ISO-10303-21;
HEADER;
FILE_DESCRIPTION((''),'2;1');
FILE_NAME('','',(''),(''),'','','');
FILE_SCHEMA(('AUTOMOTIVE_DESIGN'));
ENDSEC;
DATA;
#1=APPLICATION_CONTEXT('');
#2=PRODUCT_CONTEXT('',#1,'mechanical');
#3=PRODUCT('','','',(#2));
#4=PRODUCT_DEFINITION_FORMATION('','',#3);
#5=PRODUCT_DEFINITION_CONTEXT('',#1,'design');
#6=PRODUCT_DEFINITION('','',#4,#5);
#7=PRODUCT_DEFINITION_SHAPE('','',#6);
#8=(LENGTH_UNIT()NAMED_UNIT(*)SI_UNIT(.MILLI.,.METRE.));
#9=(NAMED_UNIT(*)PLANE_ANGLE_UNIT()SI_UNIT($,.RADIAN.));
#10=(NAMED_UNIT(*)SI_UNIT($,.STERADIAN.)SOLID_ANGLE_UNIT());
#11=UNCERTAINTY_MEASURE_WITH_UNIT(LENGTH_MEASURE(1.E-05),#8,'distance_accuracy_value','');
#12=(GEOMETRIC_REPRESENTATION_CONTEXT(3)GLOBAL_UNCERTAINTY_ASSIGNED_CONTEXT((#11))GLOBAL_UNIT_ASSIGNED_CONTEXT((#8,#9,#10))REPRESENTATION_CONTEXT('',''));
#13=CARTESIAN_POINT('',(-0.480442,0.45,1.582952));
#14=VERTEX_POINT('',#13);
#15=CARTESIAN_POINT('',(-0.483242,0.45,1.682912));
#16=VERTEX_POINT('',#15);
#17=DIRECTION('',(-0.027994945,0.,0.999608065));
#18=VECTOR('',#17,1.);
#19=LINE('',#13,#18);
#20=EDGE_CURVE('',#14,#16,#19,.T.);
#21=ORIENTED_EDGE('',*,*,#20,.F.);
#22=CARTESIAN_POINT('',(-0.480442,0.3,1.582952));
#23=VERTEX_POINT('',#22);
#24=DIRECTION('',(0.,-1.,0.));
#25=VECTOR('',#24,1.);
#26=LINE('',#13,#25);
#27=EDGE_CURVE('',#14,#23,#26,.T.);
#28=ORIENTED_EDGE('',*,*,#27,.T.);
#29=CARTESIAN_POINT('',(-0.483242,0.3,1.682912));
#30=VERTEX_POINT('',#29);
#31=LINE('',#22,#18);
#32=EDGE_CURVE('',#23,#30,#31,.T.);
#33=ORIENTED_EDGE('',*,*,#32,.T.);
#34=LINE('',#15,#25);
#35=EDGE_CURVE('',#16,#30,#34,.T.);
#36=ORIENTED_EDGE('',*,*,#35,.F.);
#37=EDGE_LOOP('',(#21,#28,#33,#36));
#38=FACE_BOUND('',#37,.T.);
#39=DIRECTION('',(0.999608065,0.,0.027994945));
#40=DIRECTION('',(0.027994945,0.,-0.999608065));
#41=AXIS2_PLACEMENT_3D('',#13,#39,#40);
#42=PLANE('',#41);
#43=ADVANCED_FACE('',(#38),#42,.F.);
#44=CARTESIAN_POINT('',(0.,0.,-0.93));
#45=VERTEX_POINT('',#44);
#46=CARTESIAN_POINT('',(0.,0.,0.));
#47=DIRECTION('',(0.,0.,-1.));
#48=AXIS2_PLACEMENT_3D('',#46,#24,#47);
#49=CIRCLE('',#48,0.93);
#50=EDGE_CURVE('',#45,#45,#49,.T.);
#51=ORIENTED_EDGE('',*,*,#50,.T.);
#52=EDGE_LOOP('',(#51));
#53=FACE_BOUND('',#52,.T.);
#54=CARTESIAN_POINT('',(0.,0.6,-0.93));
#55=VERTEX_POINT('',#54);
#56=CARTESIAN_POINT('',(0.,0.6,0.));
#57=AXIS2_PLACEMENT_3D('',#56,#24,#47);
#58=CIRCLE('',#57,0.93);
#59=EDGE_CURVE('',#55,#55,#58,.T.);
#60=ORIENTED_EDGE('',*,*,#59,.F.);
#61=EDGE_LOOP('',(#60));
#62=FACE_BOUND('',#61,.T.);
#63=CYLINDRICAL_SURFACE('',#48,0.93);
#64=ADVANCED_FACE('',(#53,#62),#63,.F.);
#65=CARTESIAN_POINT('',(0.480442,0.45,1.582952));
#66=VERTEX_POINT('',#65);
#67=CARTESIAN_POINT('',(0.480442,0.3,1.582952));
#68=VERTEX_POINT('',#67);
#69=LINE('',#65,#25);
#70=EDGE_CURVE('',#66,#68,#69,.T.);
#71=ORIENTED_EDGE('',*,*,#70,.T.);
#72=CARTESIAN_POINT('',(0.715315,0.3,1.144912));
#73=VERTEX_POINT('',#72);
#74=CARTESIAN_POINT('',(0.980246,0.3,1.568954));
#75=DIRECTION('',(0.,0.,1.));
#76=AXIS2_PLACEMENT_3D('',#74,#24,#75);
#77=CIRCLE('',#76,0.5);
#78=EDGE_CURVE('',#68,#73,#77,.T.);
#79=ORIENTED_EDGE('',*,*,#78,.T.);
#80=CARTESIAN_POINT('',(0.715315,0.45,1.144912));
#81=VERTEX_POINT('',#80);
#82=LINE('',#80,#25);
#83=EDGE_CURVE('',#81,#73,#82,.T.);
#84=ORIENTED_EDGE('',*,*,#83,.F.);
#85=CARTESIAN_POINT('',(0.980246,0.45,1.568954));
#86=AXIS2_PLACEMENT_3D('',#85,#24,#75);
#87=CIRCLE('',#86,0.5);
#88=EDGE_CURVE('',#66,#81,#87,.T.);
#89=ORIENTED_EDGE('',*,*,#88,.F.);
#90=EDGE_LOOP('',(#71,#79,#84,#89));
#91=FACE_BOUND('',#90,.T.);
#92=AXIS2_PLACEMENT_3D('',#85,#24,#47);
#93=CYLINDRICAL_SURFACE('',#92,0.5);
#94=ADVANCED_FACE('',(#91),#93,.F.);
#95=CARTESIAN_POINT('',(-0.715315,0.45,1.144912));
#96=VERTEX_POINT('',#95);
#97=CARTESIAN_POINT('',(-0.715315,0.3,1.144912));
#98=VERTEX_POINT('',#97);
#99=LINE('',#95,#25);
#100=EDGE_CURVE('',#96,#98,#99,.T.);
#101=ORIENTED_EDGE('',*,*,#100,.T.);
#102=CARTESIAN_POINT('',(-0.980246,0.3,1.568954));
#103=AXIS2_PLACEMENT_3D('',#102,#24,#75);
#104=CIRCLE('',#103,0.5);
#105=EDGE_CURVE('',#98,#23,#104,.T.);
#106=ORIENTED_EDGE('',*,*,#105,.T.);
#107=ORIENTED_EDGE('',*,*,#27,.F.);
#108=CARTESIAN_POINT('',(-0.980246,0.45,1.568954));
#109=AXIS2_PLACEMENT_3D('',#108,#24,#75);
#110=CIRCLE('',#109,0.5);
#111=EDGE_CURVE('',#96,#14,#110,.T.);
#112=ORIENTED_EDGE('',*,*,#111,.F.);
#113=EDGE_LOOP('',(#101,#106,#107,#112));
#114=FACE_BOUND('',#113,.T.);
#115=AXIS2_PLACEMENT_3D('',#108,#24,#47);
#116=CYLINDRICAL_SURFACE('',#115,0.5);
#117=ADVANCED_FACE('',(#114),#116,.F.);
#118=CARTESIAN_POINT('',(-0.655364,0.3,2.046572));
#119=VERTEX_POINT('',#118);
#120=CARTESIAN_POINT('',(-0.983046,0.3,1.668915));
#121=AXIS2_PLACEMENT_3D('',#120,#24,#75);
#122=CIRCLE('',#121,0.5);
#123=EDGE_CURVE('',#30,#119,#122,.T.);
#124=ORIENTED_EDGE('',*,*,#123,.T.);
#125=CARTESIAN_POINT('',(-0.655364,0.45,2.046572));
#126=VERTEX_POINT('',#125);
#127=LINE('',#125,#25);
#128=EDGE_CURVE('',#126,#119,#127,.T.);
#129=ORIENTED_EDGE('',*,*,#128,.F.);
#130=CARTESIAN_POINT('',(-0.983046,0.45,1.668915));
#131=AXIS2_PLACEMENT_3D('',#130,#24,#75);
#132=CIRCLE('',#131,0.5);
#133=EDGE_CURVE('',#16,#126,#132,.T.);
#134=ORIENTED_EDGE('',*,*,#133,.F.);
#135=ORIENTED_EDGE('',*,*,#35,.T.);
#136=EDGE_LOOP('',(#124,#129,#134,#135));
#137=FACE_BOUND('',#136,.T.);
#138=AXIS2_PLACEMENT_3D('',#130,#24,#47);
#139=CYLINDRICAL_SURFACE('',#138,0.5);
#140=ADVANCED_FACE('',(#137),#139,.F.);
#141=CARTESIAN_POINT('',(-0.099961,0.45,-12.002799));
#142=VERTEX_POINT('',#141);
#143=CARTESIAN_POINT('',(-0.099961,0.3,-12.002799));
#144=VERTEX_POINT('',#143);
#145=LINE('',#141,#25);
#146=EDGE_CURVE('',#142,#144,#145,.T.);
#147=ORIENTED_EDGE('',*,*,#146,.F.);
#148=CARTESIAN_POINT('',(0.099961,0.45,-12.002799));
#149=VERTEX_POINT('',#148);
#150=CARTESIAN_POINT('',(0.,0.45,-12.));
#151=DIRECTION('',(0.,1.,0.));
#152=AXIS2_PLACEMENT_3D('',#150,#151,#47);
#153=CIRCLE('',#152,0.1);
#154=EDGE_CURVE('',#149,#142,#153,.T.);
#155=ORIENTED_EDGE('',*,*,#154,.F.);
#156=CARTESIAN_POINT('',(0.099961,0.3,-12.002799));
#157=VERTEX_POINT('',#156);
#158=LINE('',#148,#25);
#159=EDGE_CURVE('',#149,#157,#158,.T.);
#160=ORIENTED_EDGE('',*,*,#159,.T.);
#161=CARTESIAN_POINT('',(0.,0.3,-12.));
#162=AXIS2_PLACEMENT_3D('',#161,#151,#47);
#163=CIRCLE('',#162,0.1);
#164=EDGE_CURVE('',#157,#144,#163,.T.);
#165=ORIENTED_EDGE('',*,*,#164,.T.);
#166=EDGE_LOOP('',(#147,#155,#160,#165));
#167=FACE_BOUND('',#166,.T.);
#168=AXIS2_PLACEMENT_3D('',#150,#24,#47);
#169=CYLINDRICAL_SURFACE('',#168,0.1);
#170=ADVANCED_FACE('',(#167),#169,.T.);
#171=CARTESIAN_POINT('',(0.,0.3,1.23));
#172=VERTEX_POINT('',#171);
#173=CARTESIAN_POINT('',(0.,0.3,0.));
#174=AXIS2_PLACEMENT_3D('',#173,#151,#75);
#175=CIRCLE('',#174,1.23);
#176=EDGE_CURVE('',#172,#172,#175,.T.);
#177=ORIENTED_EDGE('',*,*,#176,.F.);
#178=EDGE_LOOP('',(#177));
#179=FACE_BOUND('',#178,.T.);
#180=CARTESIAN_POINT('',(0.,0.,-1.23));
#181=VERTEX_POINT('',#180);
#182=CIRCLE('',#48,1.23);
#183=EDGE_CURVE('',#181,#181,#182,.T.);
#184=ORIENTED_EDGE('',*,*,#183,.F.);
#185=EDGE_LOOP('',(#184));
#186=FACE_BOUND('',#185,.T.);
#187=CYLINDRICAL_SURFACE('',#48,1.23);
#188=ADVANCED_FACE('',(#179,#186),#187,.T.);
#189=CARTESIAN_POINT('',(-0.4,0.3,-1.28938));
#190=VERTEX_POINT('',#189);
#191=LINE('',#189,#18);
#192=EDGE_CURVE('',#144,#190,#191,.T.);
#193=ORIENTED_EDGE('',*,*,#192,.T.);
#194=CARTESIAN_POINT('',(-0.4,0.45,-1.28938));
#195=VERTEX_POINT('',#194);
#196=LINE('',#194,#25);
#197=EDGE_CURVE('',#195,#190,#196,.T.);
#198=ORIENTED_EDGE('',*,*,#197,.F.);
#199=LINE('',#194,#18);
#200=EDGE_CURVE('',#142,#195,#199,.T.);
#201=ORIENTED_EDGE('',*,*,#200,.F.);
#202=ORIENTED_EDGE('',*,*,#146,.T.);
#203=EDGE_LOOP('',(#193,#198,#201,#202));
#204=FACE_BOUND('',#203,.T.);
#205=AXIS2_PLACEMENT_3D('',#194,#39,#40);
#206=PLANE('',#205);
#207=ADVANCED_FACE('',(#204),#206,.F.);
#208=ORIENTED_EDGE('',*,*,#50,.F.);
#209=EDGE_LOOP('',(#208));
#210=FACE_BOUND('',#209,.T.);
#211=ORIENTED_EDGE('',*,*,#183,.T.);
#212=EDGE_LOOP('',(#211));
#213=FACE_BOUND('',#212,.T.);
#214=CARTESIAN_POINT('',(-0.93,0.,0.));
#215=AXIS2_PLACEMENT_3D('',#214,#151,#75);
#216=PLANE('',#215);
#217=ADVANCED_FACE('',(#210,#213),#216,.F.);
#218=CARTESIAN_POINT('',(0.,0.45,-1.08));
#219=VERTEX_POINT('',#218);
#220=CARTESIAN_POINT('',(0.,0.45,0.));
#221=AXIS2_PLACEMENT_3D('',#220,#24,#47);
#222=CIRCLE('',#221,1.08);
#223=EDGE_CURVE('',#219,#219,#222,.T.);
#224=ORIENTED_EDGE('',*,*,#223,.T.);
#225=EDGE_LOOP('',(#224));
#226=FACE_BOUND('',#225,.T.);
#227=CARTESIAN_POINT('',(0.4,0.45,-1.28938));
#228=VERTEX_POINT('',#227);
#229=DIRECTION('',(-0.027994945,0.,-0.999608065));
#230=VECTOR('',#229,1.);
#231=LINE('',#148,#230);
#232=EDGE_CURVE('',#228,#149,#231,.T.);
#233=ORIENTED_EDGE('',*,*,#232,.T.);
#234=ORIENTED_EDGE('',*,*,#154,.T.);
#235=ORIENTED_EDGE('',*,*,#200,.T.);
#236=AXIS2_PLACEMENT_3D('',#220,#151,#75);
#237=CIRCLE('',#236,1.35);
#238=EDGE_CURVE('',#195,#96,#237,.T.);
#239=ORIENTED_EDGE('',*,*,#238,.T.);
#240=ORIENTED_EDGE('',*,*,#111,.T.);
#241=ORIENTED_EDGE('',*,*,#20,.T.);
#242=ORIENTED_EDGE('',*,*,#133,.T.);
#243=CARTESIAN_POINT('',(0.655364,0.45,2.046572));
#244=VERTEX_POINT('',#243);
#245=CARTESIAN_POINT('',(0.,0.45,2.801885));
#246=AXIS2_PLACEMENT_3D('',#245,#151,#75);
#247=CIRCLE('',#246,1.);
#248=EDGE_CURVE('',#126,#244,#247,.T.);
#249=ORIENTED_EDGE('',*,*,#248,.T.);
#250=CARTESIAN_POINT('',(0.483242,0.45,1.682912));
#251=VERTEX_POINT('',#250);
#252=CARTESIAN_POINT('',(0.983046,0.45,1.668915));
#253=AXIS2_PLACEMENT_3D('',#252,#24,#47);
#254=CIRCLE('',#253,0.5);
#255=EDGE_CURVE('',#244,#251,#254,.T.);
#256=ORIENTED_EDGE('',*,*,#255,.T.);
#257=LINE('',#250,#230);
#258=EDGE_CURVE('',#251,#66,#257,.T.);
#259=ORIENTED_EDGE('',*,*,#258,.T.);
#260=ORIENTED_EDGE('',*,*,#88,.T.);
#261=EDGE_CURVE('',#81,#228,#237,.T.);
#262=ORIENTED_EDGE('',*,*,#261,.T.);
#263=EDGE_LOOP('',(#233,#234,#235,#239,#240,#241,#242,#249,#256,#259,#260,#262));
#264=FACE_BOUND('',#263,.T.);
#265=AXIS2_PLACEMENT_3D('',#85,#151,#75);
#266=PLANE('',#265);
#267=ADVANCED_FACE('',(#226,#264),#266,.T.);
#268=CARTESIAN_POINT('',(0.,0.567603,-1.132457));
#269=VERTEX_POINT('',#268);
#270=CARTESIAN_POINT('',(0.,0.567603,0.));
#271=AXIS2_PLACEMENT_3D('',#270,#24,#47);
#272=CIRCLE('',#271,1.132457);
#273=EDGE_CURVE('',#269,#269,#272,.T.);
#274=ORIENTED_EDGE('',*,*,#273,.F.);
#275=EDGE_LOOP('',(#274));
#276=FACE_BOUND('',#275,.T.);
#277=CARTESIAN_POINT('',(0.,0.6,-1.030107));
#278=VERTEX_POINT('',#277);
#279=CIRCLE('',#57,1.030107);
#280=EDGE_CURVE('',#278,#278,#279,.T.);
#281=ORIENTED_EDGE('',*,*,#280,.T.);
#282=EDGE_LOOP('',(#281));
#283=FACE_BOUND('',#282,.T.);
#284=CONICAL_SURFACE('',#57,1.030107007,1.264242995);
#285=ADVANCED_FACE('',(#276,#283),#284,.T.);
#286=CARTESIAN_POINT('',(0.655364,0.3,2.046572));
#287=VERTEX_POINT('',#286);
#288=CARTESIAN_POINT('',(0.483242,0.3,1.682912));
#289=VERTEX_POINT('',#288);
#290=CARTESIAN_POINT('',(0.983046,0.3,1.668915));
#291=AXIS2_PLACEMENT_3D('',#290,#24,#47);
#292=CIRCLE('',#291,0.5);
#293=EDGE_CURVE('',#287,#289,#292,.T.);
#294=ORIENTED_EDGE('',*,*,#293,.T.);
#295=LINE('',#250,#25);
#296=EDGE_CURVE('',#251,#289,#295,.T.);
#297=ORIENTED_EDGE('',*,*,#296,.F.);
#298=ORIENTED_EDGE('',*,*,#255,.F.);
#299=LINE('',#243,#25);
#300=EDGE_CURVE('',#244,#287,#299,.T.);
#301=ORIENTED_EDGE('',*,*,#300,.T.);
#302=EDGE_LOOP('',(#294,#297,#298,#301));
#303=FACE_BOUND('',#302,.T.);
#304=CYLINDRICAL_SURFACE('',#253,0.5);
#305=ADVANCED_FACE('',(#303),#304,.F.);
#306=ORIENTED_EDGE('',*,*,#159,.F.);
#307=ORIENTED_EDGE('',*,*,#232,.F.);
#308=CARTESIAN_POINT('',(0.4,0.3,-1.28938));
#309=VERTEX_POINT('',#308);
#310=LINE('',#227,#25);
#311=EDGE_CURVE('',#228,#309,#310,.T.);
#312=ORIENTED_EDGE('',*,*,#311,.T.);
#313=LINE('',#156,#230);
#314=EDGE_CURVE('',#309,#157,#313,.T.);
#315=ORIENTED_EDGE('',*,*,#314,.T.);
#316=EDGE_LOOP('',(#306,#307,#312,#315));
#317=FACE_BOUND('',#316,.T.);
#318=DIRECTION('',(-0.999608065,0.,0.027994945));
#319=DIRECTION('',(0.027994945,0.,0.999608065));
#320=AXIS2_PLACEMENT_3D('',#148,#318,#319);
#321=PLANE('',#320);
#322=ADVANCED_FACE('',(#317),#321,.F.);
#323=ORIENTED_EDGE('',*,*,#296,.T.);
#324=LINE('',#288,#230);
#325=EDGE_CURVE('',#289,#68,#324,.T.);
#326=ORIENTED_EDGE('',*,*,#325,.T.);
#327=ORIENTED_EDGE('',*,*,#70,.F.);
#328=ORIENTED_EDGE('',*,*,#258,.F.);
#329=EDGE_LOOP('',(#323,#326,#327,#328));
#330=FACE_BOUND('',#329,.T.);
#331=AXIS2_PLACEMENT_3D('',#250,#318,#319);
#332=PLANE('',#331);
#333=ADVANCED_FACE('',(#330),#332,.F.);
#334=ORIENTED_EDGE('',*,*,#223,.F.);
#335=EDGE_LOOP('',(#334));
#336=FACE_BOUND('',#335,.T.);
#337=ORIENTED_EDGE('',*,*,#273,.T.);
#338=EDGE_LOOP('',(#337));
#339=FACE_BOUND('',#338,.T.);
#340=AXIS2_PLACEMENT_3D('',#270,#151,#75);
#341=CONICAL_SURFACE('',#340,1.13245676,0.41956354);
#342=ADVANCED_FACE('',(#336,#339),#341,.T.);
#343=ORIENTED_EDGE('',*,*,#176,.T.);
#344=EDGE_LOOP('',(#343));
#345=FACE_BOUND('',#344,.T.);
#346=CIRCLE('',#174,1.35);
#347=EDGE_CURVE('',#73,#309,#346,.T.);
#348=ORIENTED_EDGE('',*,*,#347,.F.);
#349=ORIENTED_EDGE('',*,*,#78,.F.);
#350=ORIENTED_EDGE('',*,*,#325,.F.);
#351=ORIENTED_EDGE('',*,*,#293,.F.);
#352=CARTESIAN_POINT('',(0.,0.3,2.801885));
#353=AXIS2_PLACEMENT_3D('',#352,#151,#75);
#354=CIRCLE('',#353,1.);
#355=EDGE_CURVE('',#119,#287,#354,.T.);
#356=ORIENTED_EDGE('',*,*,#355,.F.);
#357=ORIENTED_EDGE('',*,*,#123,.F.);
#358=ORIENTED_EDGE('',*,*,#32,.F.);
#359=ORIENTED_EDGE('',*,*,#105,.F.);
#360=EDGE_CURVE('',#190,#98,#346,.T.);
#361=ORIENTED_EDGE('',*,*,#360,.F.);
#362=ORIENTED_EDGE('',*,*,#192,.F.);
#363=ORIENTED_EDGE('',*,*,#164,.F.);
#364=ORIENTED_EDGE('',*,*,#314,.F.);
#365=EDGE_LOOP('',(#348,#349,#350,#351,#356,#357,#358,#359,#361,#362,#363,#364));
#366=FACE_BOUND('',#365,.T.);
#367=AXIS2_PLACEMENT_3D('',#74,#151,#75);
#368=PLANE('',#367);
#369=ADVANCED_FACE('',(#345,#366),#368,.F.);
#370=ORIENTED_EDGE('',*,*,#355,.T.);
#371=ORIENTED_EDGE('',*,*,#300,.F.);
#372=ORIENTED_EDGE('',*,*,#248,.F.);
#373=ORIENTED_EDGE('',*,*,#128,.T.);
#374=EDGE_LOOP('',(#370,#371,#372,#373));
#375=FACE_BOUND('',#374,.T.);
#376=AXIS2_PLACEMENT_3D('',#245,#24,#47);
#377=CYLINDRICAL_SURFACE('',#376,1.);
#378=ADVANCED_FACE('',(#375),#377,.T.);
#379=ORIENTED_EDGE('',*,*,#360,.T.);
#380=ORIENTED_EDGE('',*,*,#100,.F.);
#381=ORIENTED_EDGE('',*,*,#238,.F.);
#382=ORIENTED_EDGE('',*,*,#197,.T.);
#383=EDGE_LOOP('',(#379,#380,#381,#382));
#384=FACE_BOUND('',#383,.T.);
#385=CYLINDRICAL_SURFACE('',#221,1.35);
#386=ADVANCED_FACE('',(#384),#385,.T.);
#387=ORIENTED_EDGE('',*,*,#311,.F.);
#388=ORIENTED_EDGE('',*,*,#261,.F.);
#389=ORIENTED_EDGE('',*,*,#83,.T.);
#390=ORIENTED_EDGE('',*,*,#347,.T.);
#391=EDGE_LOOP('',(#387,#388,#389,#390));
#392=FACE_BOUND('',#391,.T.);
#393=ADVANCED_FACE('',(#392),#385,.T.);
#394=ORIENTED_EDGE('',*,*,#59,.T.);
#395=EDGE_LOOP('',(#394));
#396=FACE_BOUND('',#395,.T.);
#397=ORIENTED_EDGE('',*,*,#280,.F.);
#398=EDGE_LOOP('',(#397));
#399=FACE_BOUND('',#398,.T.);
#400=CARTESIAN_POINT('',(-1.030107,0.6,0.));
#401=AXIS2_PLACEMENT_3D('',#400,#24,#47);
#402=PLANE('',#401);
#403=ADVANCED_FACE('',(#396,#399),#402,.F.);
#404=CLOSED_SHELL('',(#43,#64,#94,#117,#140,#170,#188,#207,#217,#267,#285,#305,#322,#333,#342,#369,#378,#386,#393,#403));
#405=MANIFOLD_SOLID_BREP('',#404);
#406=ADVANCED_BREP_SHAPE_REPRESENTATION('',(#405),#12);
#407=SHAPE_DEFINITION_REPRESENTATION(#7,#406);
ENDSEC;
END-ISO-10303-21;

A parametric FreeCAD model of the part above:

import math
import FreeCAD as App
import Part
import Sketcher

doc = App.newDocument("Part")
body = doc.addObject("PartDesign::Body", "Body")

sketch1 = body.newObject("Sketcher::SketchObject", "Sketch")
sketch1.AttachmentSupport = (doc.getObject("XY_Plane"), [""])
sketch1.MapMode = "FlatFace"
sketch1.addGeometry([
    Part.LineSegment(App.Vector(-1.23, 0.3, 0), App.Vector(-1.23, 0, 0)),
    Part.LineSegment(App.Vector(-1.23, 0, 0), App.Vector(-0.93, 0, 0)),
    Part.LineSegment(App.Vector(-0.93, 0, 0), App.Vector(-0.93, 0.6, 0)),
    Part.LineSegment(App.Vector(-0.93, 0.6, 0), App.Vector(-1.03, 0.6, 0)),
    Part.LineSegment(App.Vector(-1.03, 0.6, 0), App.Vector(-1.13, 0.57, 0)),
    Part.LineSegment(App.Vector(-1.13, 0.57, 0), App.Vector(-1.08, 0.45, 0)),
    Part.LineSegment(App.Vector(-1.08, 0.45, 0), App.Vector(-1.08, 0.3, 0)),
    Part.LineSegment(App.Vector(-1.08, 0.3, 0), App.Vector(-1.23, 0.3, 0)),
], False)
sketch1.addConstraint([
    Sketcher.Constraint("Coincident", 0, 2, 1, 1),
    Sketcher.Constraint("Coincident", 1, 2, 2, 1),
    Sketcher.Constraint("Coincident", 2, 2, 3, 1),
    Sketcher.Constraint("Coincident", 3, 2, 4, 1),
    Sketcher.Constraint("Coincident", 4, 2, 5, 1),
    Sketcher.Constraint("Coincident", 5, 2, 6, 1),
    Sketcher.Constraint("Coincident", 6, 2, 7, 1),
    Sketcher.Constraint("Coincident", 7, 2, 0, 1),
    Sketcher.Constraint("Vertical", 0),
    Sketcher.Constraint("Horizontal", 1),
    Sketcher.Constraint("Vertical", 2),
    Sketcher.Constraint("Horizontal", 3),
    Sketcher.Constraint("Vertical", 6),
    Sketcher.Constraint("Horizontal", 7),
    Sketcher.Constraint("PointOnObject", 0, 2, -1),
    Sketcher.Constraint("Equal", 1, 0),
    Sketcher.Constraint("Equal", 7, 6),
    Sketcher.Constraint("DistanceX", 1, 1, 1, 2, 0.3),
    Sketcher.Constraint("DistanceY", 2, 1, 2, 2, 0.6),
    Sketcher.Constraint("DistanceX", 7, 2, 7, 1, 0.15),
    Sketcher.Constraint("DistanceX", 0, 2, -1, 1, 1.23),
    Sketcher.Constraint("Distance", 5, 0.128772),
    Sketcher.Constraint("DistanceX", 3, 2, 3, 1, 0.100107),
    Sketcher.Constraint("DistanceX", 4, 2, 3, 2, 0.10235),
])
revolution = body.newObject("PartDesign::Revolution", "Revolution")
revolution.Profile = sketch1
revolution.ReferenceAxis = (sketch1, ["V_Axis"])
revolution.Angle = 360

sketch2 = body.newObject("Sketcher::SketchObject", "Sketch001")
sketch2.AttachmentSupport = (doc.getObject("XZ_Plane"), [""])
sketch2.MapMode = "FlatFace"
sketch2.AttachmentOffset = App.Placement(App.Vector(0, 0, -0.3), App.Rotation())
sketch2.addGeometry([
    Part.LineSegment(App.Vector(0.4, -1.29, 0), App.Vector(0.1, -12, 0)),
    Part.ArcOfCircle(Part.Circle(App.Vector(0, -12, 0), App.Vector(0, 0, 1), 0.1), math.radians(-178), math.radians(-2)),
    Part.LineSegment(App.Vector(-0.1, -12, 0), App.Vector(-0.4, -1.29, 0)),
    Part.ArcOfCircle(Part.Circle(App.Vector(0, 0, 0), App.Vector(0, 0, 1), 1.35), math.radians(122), math.radians(253)),
    Part.ArcOfCircle(Part.Circle(App.Vector(-0.98, 1.57, 0), App.Vector(0, 0, 1), 0.5), math.radians(-58), math.radians(2)),
    Part.LineSegment(App.Vector(-0.48, 1.58, 0), App.Vector(-0.48, 1.68, 0)),
    Part.ArcOfCircle(Part.Circle(App.Vector(-0.98, 1.67, 0), App.Vector(0, 0, 1), 0.5), math.radians(2), math.radians(49)),
    Part.ArcOfCircle(Part.Circle(App.Vector(0, 2.8, 0), App.Vector(0, 0, 1), 1), math.radians(-49), math.radians(229)),
    Part.ArcOfCircle(Part.Circle(App.Vector(0.98, 1.67, 0), App.Vector(0, 0, 1), 0.5), math.radians(131), math.radians(178)),
    Part.LineSegment(App.Vector(0.48, 1.68, 0), App.Vector(0.48, 1.58, 0)),
    Part.ArcOfCircle(Part.Circle(App.Vector(0.98, 1.57, 0), App.Vector(0, 0, 1), 0.5), math.radians(178), math.radians(238)),
    Part.ArcOfCircle(Part.Circle(App.Vector(0, 0, 0), App.Vector(0, 0, 1), 1.35), math.radians(-73), math.radians(58)),
    Part.Circle(App.Vector(0, 0, 0), App.Vector(0, 0, 1), 1.08),
], False)
sketch2.addConstraint([
    Sketcher.Constraint("Tangent", 0, 2, 1, 2),
    Sketcher.Constraint("Tangent", 1, 1, 2, 1),
    Sketcher.Constraint("Coincident", 2, 2, 3, 2),
    Sketcher.Constraint("Tangent", 3, 1, 4, 1),
    Sketcher.Constraint("Tangent", 4, 2, 5, 1),
    Sketcher.Constraint("Tangent", 5, 2, 6, 1),
    Sketcher.Constraint("Tangent", 6, 2, 7, 2),
    Sketcher.Constraint("Tangent", 7, 1, 8, 1),
    Sketcher.Constraint("Tangent", 8, 2, 9, 1),
    Sketcher.Constraint("Tangent", 9, 2, 10, 1),
    Sketcher.Constraint("Tangent", 10, 2, 11, 2),
    Sketcher.Constraint("Coincident", 11, 1, 0, 1),
    Sketcher.Constraint("Coincident", 3, 3, -1, 1),
    Sketcher.Constraint("Coincident", 11, 3, -1, 1),
    Sketcher.Constraint("Coincident", 12, 3, -1, 1),
    Sketcher.Constraint("Equal", 4, 6),
    Sketcher.Constraint("Equal", 6, 8),
    Sketcher.Constraint("Equal", 8, 10),
    Sketcher.Constraint("Equal", 3, 11),
    Sketcher.Constraint("Symmetric", 6, 3, 8, 3, -2),
    Sketcher.Constraint("Symmetric", 0, 2, 1, 1, -2),
    Sketcher.Constraint("Parallel", 2, 5),
    Sketcher.Constraint("Parallel", 0, 9),
    Sketcher.Constraint("Radius", 7, 1.0),
    Sketcher.Constraint("Radius", 1, 0.1),
    Sketcher.Constraint("Radius", 4, 0.5),
    Sketcher.Constraint("Diameter", 12, 2.16),
    Sketcher.Constraint("Radius", 3, 1.35),
    Sketcher.Constraint("DistanceY", 1, 3, -1, 1, 12.0),
    Sketcher.Constraint("Distance", 5, 0.1),
    Sketcher.Constraint("DistanceX", 2, 2, -1, 1, 0.4),
    Sketcher.Constraint("DistanceY", 3, 1, 5, 2, 0.538),
])
pad1 = body.newObject("PartDesign::Pad", "Pad")
pad1.Profile = sketch2
pad1.Length = 0.15
pad1.Reversed = True

doc.recompute()
